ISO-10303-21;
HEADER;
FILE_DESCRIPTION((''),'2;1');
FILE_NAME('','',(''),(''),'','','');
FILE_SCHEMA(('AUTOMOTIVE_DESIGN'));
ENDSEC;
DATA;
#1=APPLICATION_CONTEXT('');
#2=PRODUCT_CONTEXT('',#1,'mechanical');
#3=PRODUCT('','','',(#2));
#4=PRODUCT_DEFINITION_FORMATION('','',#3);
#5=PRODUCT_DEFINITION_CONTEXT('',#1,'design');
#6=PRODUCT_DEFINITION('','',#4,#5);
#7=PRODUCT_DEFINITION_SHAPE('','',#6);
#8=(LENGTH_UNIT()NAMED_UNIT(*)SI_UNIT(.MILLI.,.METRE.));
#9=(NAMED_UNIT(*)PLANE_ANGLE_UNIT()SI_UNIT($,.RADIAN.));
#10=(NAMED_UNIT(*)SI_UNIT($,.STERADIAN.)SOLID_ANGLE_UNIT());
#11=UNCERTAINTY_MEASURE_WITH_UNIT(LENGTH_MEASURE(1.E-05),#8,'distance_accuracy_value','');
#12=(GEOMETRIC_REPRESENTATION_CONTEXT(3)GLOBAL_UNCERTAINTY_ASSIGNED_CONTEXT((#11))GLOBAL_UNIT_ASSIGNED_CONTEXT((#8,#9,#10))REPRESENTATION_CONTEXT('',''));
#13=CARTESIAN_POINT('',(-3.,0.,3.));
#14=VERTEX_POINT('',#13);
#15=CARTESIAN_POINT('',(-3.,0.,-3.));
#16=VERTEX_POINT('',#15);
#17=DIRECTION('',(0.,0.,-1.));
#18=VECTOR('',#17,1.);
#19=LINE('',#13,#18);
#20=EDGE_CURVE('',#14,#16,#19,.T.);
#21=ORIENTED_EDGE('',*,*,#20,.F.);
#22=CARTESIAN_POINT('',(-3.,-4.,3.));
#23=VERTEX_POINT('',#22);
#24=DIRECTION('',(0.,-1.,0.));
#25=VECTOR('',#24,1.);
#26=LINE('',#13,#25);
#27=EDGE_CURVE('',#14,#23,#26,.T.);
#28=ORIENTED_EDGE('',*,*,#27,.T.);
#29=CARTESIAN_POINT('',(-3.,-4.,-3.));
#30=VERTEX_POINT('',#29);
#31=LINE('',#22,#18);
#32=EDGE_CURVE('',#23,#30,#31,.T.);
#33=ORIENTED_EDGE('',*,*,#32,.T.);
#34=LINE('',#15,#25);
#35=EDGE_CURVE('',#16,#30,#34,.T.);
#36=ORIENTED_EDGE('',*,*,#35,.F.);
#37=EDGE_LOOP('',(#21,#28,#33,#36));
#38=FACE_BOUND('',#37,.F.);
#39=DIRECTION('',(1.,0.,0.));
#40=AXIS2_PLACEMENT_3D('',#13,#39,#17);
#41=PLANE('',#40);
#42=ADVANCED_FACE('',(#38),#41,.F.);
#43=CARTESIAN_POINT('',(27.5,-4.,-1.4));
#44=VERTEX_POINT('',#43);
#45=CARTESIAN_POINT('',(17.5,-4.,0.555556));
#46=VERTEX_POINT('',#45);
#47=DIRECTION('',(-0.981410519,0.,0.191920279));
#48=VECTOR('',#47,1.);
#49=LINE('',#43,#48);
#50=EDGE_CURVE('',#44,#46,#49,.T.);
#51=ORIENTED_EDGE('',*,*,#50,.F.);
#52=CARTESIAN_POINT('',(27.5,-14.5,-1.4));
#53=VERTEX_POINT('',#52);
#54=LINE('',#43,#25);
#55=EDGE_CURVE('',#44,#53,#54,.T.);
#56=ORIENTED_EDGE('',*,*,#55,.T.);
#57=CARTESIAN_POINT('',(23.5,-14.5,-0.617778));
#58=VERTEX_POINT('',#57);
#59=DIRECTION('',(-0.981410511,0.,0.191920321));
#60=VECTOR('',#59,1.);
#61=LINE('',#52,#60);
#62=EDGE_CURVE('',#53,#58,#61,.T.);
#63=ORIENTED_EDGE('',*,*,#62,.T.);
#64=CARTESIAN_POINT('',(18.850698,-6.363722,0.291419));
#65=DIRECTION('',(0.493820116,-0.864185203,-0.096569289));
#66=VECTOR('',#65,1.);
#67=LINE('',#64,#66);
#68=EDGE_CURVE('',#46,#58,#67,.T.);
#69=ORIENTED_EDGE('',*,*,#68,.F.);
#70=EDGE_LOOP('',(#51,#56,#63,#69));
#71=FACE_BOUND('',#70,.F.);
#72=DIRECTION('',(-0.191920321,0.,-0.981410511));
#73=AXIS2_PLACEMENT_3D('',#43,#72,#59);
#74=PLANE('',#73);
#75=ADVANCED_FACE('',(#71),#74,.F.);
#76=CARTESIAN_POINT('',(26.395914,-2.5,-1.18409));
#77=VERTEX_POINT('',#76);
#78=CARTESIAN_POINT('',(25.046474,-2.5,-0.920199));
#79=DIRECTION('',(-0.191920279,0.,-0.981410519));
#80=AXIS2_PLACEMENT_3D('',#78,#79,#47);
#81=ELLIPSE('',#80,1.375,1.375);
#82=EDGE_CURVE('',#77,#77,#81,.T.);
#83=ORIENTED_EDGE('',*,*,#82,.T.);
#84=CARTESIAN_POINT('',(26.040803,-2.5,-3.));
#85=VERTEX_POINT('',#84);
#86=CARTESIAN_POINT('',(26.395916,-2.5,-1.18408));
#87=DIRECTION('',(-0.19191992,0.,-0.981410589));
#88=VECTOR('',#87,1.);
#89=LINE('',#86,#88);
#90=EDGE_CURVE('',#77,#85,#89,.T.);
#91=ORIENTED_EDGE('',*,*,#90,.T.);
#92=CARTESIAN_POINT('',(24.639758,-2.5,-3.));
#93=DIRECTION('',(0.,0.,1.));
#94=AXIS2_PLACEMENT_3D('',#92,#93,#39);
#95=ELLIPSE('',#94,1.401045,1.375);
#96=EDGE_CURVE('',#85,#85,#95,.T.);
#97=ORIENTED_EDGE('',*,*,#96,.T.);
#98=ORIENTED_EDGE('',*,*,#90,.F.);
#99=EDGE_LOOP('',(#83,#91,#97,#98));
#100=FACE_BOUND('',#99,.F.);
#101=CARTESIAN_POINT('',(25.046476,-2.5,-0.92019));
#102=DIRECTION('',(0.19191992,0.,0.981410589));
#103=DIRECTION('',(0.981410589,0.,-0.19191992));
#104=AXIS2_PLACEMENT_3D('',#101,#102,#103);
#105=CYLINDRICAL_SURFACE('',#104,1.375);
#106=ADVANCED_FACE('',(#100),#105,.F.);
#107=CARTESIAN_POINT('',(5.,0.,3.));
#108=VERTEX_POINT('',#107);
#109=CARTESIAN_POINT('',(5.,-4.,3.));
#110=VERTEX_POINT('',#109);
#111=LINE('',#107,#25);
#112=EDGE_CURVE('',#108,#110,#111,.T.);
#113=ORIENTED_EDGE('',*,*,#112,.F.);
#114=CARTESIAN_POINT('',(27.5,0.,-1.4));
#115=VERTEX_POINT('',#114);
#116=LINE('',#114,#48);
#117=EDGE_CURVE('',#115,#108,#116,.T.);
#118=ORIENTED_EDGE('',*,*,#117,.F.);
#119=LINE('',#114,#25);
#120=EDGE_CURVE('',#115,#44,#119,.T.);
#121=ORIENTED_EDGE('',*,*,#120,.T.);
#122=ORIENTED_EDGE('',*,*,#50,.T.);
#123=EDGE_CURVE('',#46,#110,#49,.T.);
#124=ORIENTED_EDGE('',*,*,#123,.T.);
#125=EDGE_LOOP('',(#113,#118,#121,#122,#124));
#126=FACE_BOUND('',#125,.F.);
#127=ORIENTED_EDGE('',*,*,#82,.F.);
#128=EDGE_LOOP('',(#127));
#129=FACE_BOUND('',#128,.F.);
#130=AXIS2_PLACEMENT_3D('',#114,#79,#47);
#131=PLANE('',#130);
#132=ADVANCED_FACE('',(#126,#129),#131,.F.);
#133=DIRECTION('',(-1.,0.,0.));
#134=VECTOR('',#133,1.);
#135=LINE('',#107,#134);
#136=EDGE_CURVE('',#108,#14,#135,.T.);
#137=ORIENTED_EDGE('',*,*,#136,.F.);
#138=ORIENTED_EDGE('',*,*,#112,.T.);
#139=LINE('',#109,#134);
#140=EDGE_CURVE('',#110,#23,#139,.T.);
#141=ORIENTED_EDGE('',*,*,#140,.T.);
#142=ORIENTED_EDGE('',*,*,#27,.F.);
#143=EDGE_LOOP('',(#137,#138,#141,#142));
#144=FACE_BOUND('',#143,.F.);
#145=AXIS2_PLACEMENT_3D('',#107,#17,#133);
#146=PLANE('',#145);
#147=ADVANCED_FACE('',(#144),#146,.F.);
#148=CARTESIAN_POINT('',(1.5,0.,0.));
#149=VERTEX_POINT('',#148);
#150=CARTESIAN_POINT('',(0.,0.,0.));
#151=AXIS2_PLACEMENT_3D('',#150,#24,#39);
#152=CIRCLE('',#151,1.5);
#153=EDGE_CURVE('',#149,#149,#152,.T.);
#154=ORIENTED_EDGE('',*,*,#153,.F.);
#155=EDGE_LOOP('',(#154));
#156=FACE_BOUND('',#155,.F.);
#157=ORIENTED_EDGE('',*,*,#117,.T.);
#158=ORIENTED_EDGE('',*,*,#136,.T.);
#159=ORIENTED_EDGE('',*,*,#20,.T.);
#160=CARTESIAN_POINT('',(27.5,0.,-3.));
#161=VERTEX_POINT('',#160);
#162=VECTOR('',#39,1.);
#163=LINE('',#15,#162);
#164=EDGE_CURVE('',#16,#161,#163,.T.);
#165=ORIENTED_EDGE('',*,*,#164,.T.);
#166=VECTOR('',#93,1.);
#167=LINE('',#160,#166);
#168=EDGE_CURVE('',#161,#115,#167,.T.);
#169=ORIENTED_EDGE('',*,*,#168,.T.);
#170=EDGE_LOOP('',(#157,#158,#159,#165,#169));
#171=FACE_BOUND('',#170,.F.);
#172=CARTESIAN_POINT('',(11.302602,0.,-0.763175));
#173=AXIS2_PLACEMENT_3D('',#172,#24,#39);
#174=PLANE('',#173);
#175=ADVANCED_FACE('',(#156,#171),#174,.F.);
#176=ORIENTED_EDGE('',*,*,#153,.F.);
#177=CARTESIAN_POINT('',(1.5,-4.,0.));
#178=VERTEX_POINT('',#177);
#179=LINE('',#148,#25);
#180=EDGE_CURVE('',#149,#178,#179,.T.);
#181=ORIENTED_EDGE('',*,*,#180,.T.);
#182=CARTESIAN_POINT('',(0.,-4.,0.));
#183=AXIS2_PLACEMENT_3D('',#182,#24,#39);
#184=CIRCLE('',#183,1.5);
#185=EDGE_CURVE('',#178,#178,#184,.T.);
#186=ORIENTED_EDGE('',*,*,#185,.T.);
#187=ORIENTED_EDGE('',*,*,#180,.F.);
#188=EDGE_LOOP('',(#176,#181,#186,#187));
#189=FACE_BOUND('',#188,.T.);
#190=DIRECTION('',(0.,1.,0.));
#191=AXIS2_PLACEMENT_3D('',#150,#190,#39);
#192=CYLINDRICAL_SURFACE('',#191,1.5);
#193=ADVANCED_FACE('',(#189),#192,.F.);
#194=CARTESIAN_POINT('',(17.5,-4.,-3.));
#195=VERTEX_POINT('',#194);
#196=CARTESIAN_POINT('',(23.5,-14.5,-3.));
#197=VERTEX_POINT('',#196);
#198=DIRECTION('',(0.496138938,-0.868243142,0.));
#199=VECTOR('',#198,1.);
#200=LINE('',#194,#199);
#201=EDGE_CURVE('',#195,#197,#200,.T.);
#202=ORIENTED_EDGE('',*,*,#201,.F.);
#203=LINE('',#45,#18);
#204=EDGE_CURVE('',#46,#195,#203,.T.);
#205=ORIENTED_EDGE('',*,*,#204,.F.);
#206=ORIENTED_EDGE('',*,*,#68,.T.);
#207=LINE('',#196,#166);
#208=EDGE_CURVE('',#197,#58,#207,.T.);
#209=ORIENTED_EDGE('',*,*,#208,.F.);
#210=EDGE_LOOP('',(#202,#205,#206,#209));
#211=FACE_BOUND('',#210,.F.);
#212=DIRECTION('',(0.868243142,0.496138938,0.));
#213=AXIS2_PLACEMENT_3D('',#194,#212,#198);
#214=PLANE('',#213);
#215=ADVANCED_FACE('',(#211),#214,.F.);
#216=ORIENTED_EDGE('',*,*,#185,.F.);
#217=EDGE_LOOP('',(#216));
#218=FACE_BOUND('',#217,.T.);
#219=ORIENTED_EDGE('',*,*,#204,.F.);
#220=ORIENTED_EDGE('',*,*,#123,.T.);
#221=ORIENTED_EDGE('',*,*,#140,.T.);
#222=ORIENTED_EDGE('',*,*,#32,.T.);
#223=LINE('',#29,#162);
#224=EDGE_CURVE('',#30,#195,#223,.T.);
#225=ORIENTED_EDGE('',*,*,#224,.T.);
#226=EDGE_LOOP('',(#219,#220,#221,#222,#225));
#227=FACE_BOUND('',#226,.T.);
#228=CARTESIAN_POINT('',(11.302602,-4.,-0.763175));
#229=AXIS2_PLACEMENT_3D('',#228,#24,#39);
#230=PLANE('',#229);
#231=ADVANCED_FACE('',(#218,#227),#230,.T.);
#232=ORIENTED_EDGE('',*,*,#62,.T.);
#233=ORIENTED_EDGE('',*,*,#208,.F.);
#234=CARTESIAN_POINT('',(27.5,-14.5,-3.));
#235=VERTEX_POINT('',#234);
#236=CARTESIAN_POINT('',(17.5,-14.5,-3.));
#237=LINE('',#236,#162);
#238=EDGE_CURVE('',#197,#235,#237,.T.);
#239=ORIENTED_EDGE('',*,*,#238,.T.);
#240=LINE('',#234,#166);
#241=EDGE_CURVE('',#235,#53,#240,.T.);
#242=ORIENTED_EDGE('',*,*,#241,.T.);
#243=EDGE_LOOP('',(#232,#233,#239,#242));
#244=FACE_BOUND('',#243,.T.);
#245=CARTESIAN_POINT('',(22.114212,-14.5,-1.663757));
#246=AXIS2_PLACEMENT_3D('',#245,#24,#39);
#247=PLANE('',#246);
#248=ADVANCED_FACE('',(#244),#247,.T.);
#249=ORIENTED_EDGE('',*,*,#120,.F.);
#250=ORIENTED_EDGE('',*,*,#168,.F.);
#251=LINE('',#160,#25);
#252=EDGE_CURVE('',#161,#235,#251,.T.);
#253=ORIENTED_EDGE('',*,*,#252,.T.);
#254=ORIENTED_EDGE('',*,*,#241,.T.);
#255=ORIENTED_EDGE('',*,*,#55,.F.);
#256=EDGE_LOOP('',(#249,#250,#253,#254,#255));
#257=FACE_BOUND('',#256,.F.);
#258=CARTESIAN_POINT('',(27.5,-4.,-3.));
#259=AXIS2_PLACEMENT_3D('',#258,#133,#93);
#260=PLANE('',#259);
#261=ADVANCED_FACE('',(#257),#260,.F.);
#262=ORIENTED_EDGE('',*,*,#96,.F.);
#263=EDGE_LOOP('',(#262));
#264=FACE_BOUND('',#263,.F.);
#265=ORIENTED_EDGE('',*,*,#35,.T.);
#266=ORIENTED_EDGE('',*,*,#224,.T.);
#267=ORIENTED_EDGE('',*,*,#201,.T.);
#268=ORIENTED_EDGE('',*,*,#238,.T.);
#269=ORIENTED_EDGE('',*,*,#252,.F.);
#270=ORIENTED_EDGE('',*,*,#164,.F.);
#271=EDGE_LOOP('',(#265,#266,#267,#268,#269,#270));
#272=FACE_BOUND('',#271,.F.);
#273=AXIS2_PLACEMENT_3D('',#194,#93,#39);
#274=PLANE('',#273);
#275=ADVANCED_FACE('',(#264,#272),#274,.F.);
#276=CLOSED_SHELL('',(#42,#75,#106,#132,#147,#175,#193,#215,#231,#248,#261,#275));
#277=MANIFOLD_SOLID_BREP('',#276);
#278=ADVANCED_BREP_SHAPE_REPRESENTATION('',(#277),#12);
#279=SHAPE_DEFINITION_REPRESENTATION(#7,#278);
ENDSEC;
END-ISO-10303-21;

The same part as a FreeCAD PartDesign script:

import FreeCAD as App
import Part
import Sketcher
Q = App.Units.Quantity


def add_polygon(sketch, points):
    """Adds a closed chain of lines whose ends are joined by coincident constraints."""
    first, n = sketch.GeometryCount, len(points)
    for a, b in zip(points, points[1:] + points[:1]):
        sketch.addGeometry(Part.LineSegment(App.Vector(*a, 0), App.Vector(*b, 0)), False)
    for i in range(n):
        sketch.addConstraint(Sketcher.Constraint("Coincident", first + i, 2, first + (i + 1) % n, 1))

doc = App.newDocument("Part")
body = doc.addObject("PartDesign::Body", "Body")

# Sketch on XZ plane
sketch1 = doc.addObject("Sketcher::SketchObject", "Sketch")
body.addObject(sketch1)
sketch1.AttachmentSupport = (doc.XZ_Plane, [""])
sketch1.MapMode = "FlatFace"
add_polygon(sketch1, [(5, 3), (-3, 3), (-3, -3), (27.5, -3), (27.5, -1.4)])  # lines 0-4
sketch1.addGeometry(Part.Circle(App.Vector(0, 0, 0), App.Vector(0, 0, 1), 1.5), False)  # 5
sketch1.addConstraint([
    Sketcher.Constraint("Horizontal", 0),
    Sketcher.Constraint("Vertical", 1),
    Sketcher.Constraint("Horizontal", 2),
    Sketcher.Constraint("Vertical", 3),
    Sketcher.Constraint("Coincident", 5, 3, -1, 1),
    Sketcher.Constraint("Diameter", 5, Q("3 mm")),
    Sketcher.Constraint("DistanceX", 0, 2, 0, 1, Q("8 mm")),
    Sketcher.Constraint("DistanceY", 1, 2, 1, 1, Q("6 mm")),
    Sketcher.Constraint("DistanceX", 2, 1, 2, 2, Q("30.5 mm")),
    Sketcher.Constraint("DistanceY", 3, 1, 3, 2, Q("1.6 mm")),
    Sketcher.Constraint("DistanceX", 0, 2, -1, 1, Q("3 mm")),
    Sketcher.Constraint("DistanceY", -1, 1, 0, 2, Q("3 mm")),
])
pad1 = doc.addObject("PartDesign::Pad", "Pad")
body.addObject(pad1)
pad1.Profile = sketch1
pad1.Length = 4

# Sketch on XZ plane
sketch2 = doc.addObject("Sketcher::SketchObject", "Sketch001")
body.addObject(sketch2)
sketch2.AttachmentSupport = (doc.XZ_Plane, [""])
sketch2.MapMode = "FlatFace"
sketch2.AttachmentOffset = App.Placement(App.Vector(0, 0, 4), App.Rotation())
add_polygon(sketch2, [(17.5, -3), (27.5, -3), (27.5, -1.4), (17.5, 0.6)])  # lines 0-3
sketch2.addConstraint([
    Sketcher.Constraint("Horizontal", 0),
    Sketcher.Constraint("Vertical", 1),
    Sketcher.Constraint("Vertical", 3),
    Sketcher.Constraint("DistanceX", 0, 1, 0, 2, Q("10 mm")),
    Sketcher.Constraint("DistanceY", 1, 1, 1, 2, Q("1.6 mm")),
    Sketcher.Constraint("DistanceY", 0, 2, -1, 1, Q("3 mm")),
    Sketcher.Constraint("DistanceX", -1, 1, 0, 2, Q("27.5 mm")),
    Sketcher.Constraint("DistanceY", 3, 2, 3, 1, Q("3.555556 mm")),
])
pad2 = doc.addObject("PartDesign::Pad", "Pad001")
body.addObject(pad2)
pad2.Profile = sketch2
pad2.Length = 10.5

# Sketch on XY plane
sketch3 = doc.addObject("Sketcher::SketchObject", "Sketch002")
body.addObject(sketch3)
sketch3.AttachmentSupport = (doc.XY_Plane, [""])
sketch3.MapMode = "FlatFace"
sketch3.AttachmentOffset = App.Placement(App.Vector(0, 0, -3), App.Rotation())
add_polygon(sketch3, [(24, -14), (18, -14), (18, -4)])  # lines 0-2
sketch3.addConstraint([
    Sketcher.Constraint("Horizontal", 0),
    Sketcher.Constraint("Vertical", 1),
    Sketcher.Constraint("DistanceX", 0, 2, 0, 1, Q("6 mm")),
    Sketcher.Constraint("DistanceY", 1, 1, 1, 2, Q("10.5 mm")),
    Sketcher.Constraint("DistanceY", 1, 2, -1, 1, Q("4 mm")),
    Sketcher.Constraint("DistanceX", -1, 1, 0, 2, Q("17.5 mm")),
])
pocket1 = doc.addObject("PartDesign::Pocket", "Pocket")
body.addObject(pocket1)
pocket1.Profile = sketch3
pocket1.Type = "ThroughAll"
pocket1.Reversed = True

# Sketch on an angled plane
sketch4 = doc.addObject("Sketcher::SketchObject", "Sketch003")
body.addObject(sketch4)
sketch4.Placement = App.Placement(App.Vector(0.749225, 0, 3.831263), App.Rotation(App.Vector(0.981410589, 0, -0.19191992), App.Vector(0, 1, 0), App.Vector(0.19191992, 0, 0.981410589), "ZXY"))
sketch4.addGeometry(Part.Circle(App.Vector(24.8, -2.5, 0), App.Vector(0, 0, 1), 1.4), False)
sketch4.addConstraint([
    Sketcher.Constraint("Diameter", 0, Q("2.75 mm")),
    Sketcher.Constraint("DistanceY", 0, 3, -1, 1, Q("2.5 mm")),
    Sketcher.Constraint("DistanceX", -1, 1, 0, 3, Q("24.757478 mm")),
])
pocket2 = doc.addObject("PartDesign::Pocket", "Pocket001")
body.addObject(pocket2)
pocket2.Profile = sketch4
pocket2.Type = "ThroughAll"

doc.recompute()
